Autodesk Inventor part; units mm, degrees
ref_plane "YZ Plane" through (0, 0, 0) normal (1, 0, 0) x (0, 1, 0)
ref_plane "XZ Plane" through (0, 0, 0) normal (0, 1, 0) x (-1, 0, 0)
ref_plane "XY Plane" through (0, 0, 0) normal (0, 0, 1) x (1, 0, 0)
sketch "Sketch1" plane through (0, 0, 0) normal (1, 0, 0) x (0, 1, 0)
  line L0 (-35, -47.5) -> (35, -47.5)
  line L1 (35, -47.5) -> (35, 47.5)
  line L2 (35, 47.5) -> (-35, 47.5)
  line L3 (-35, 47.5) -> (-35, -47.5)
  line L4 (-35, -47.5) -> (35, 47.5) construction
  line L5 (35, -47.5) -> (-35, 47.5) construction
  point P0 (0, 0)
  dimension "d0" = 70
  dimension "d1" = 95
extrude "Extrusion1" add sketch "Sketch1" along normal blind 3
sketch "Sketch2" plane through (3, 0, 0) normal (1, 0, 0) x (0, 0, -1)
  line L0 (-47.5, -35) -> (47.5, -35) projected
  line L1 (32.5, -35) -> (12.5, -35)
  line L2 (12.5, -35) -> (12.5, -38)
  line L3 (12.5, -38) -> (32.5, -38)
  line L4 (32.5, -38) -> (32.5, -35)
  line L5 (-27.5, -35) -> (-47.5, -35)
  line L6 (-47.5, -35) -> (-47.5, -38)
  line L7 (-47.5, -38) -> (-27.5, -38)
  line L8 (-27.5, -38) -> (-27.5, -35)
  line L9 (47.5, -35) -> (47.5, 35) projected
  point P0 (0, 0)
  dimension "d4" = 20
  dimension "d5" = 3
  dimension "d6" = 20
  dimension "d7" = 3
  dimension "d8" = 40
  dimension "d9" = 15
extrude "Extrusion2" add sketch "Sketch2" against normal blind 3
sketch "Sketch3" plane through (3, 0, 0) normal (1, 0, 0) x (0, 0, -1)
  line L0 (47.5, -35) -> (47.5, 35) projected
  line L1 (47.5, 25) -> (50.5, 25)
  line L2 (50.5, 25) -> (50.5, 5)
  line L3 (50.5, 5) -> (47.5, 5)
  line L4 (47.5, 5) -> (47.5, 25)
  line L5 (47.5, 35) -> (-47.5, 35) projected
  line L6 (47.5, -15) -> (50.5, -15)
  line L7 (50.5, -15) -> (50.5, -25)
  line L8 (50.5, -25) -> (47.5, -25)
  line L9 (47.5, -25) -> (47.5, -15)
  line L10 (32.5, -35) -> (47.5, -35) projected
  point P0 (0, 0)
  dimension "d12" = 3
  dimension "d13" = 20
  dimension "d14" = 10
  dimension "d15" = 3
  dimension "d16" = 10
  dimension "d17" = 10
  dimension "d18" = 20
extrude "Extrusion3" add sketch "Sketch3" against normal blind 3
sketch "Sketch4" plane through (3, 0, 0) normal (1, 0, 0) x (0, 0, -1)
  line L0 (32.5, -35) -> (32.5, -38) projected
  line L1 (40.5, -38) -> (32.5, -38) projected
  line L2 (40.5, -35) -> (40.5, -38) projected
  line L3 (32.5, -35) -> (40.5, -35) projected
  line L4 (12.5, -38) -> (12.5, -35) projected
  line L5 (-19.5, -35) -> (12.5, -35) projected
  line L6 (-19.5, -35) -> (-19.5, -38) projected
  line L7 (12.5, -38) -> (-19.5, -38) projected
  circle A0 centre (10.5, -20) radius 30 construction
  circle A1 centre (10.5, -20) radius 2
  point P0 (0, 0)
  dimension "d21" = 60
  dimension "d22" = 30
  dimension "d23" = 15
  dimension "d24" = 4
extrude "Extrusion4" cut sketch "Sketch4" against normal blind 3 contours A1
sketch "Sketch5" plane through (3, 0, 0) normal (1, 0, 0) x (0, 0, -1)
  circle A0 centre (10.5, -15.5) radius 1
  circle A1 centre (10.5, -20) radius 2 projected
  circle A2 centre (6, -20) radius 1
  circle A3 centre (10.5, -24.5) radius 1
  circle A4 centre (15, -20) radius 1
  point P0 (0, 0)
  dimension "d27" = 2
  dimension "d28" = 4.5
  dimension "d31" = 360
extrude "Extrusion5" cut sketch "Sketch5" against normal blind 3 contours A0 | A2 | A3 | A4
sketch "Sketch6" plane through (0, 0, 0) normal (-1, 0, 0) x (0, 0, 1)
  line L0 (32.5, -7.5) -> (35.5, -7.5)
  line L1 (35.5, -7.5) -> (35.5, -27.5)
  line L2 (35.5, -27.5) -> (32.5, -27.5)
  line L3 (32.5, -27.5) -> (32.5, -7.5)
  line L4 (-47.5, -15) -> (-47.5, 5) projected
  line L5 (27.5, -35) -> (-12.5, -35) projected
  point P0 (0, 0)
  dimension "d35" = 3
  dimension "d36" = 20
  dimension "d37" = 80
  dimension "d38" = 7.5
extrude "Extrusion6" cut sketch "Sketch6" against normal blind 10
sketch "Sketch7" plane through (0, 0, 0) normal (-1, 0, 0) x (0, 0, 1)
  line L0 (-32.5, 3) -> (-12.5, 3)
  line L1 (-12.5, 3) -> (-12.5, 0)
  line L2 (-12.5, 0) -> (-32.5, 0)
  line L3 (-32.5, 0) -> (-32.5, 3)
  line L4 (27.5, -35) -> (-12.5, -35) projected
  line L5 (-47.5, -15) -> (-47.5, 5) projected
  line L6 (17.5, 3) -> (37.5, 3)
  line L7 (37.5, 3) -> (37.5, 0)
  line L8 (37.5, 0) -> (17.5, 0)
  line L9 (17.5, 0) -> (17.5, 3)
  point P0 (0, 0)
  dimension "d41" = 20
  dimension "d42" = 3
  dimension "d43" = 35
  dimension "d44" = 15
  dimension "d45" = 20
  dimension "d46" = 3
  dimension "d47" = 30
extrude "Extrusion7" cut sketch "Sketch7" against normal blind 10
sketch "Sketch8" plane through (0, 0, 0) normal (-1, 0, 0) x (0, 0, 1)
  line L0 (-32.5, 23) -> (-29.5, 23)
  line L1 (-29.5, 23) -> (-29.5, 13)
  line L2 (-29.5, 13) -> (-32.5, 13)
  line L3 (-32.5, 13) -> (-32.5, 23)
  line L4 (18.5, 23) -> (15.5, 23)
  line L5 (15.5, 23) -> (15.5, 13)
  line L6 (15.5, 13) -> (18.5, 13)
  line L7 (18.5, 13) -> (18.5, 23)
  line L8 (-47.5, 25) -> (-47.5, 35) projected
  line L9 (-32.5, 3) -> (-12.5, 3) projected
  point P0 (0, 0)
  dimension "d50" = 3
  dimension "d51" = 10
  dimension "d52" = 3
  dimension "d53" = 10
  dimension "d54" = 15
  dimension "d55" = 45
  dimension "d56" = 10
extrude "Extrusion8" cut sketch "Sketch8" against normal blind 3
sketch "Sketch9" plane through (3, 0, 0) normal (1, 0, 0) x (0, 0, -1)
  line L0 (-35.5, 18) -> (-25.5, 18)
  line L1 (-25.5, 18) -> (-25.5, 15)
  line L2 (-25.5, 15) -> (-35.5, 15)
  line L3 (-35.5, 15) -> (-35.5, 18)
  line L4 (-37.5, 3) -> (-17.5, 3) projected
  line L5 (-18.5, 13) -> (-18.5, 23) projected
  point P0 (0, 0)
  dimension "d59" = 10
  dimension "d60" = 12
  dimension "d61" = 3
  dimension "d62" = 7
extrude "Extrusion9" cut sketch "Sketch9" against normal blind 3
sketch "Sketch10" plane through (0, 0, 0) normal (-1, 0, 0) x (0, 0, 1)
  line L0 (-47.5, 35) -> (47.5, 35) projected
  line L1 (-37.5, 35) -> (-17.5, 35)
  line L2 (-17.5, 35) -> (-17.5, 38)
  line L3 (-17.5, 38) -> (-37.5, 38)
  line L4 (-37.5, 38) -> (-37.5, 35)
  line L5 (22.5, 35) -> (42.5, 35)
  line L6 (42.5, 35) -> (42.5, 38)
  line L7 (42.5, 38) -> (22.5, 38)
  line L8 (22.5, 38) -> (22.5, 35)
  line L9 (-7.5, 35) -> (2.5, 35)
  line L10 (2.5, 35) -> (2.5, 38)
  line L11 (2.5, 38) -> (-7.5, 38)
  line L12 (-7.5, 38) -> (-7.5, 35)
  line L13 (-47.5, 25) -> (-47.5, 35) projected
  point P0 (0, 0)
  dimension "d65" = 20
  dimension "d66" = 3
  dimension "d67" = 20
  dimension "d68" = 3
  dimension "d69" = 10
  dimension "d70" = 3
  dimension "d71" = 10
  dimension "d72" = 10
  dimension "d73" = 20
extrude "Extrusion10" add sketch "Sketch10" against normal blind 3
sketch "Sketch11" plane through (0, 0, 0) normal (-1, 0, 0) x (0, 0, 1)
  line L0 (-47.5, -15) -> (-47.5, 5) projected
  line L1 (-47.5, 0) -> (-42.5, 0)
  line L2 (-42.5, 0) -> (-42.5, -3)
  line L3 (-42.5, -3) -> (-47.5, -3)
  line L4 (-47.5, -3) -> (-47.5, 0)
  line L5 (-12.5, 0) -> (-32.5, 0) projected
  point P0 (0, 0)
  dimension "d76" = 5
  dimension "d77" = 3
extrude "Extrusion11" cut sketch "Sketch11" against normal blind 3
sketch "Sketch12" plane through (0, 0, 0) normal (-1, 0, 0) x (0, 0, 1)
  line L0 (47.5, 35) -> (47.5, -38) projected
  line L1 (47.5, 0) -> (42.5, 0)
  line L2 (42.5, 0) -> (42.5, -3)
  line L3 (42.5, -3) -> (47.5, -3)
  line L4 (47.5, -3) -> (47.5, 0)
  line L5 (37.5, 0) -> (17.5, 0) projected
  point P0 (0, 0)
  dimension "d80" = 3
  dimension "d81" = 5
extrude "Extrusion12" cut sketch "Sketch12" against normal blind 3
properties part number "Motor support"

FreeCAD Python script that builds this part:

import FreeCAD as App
import Part
import Sketcher
from FreeCAD import Vector


def add_polygon(sketch, points):
    """Adds a closed chain of lines whose ends are joined by coincident constraints."""
    first, n = sketch.GeometryCount, len(points)
    for a, b in zip(points, points[1:] + points[:1]):
        sketch.addGeometry(Part.LineSegment(App.Vector(*a, 0), App.Vector(*b, 0)), False)
    for i in range(n):
        sketch.addConstraint(Sketcher.Constraint("Coincident", first + i, 2, first + (i + 1) % n, 1))

doc = App.newDocument("Part")
body = doc.addObject("PartDesign::Body", "Body")

sketch1 = body.newObject("Sketcher::SketchObject", "Sketch")
sketch1.AttachmentSupport = (doc.getObject("YZ_Plane"), [""])
sketch1.MapMode = "FlatFace"
add_polygon(sketch1, [(-35, 48), (-35, -48), (35, -48), (35, 48)])
sketch1.addConstraint(Sketcher.Constraint("Vertical", 0))
sketch1.addConstraint(Sketcher.Constraint("Horizontal", 1))
sketch1.addConstraint(Sketcher.Constraint("Vertical", 2))
sketch1.addConstraint(Sketcher.Constraint("Horizontal", 3))
sketch1.addConstraint(Sketcher.Constraint("Symmetric", 0, 2, 2, 2, -1, 1))
sketch1.addConstraint(Sketcher.Constraint("DistanceX", 1, 1, 1, 2, 70.0))
sketch1.addConstraint(Sketcher.Constraint("DistanceY", 0, 2, 0, 1, 95.0))
pad1 = body.newObject("PartDesign::Pad", "Pad")
pad1.Profile = sketch1
pad1.Length = 3

sketch2 = body.newObject("Sketcher::SketchObject", "Sketch001")
sketch2.AttachmentSupport = (doc.getObject("YZ_Plane"), [""])
sketch2.MapMode = "FlatFace"
sketch2.AttachmentOffset = App.Placement(Vector(0, 0, 3), App.Rotation())
add_polygon(sketch2, [(-35, -32.5), (-35, -12.5), (-38, -12.5), (-38, -32.5)])
add_polygon(sketch2, [(-35, 27.5), (-35, 47.5), (-38, 47.5), (-38, 27.5)])
sketch2.addConstraint(Sketcher.Constraint("Vertical", 0))
sketch2.addConstraint(Sketcher.Constraint("Horizontal", 1))
sketch2.addConstraint(Sketcher.Constraint("Vertical", 2))
sketch2.addConstraint(Sketcher.Constraint("Horizontal", 3))
sketch2.addConstraint(Sketcher.Constraint("Vertical", 4))
sketch2.addConstraint(Sketcher.Constraint("Horizontal", 5))
sketch2.addConstraint(Sketcher.Constraint("Vertical", 6))
sketch2.addConstraint(Sketcher.Constraint("Horizontal", 7))
sketch2.addConstraint(Sketcher.Constraint("Vertical", 3, 2, 4, 2))
sketch2.addConstraint(Sketcher.Constraint("Vertical", 2, 2, 5, 2))
sketch2.addConstraint(Sketcher.Constraint("Equal", 2, 4))
sketch2.addConstraint(Sketcher.Constraint("DistanceX", 1, 2, 1, 1, 3.0))
sketch2.addConstraint(Sketcher.Constraint("DistanceY", 0, 1, 0, 2, 20.0))
sketch2.addConstraint(Sketcher.Constraint("DistanceY", 1, 2, 6, 2, 40.0))
sketch2.addConstraint(Sketcher.Constraint("DistanceX", 0, 2, -1, 1, 35.0))
sketch2.addConstraint(Sketcher.Constraint("DistanceY", 0, 2, -1, 1, 12.5))
pad2 = body.newObject("PartDesign::Pad", "Pad001")
pad2.Profile = sketch2
pad2.Length = 3
pad2.Reversed = True

sketch3 = body.newObject("Sketcher::SketchObject", "Sketch002")
sketch3.AttachmentSupport = (doc.getObject("YZ_Plane"), [""])
sketch3.MapMode = "FlatFace"
sketch3.AttachmentOffset = App.Placement(Vector(0, 0, 3), App.Rotation())
add_polygon(sketch3, [(25, -47.5), (5, -47.5), (5, -50.5), (25, -50.5)])
add_polygon(sketch3, [(-15, -47.5), (-25, -47.5), (-25, -50.5), (-15, -50.5)])
sketch3.addConstraint(Sketcher.Constraint("Horizontal", 0))
sketch3.addConstraint(Sketcher.Constraint("Vertical", 1))
sketch3.addConstraint(Sketcher.Constraint("Horizontal", 2))
sketch3.addConstraint(Sketcher.Constraint("Vertical", 3))
sketch3.addConstraint(Sketcher.Constraint("Horizontal", 4))
sketch3.addConstraint(Sketcher.Constraint("Vertical", 5))
sketch3.addConstraint(Sketcher.Constraint("Horizontal", 6))
sketch3.addConstraint(Sketcher.Constraint("Vertical", 7))
sketch3.addConstraint(Sketcher.Constraint("Symmetric", 3, 2, 4, 2, -2))
sketch3.addConstraint(Sketcher.Constraint("Horizontal", 2, 2, 5, 2))
sketch3.addConstraint(Sketcher.Constraint("DistanceX", 0, 2, 0, 1, 20.0))
sketch3.addConstraint(Sketcher.Constraint("DistanceX", 4, 2, 4, 1, 10.0))
sketch3.addConstraint(Sketcher.Constraint("DistanceY", 1, 2, 1, 1, 3.0))
sketch3.addConstraint(Sketcher.Constraint("DistanceX", 6, 2, 1, 2, 20.0))
sketch3.addConstraint(Sketcher.Constraint("DistanceY", 0, 2, -1, 1, 47.5))
pad3 = body.newObject("PartDesign::Pad", "Pad002")
pad3.Profile = sketch3
pad3.Length = 3
pad3.Reversed = True

sketch4 = body.newObject("Sketcher::SketchObject", "Sketch003")
sketch4.AttachmentSupport = (doc.getObject("YZ_Plane"), [""])
sketch4.MapMode = "FlatFace"
sketch4.AttachmentOffset = App.Placement(Vector(0, 0, 3), App.Rotation())
sketch4.addGeometry(Part.Circle(Vector(-20, -10.5, 0), Vector(0, 0, 1), 2), False)
sketch4.addConstraint(Sketcher.Constraint("Diameter", 0, 4.0))
sketch4.addConstraint(Sketcher.Constraint("DistanceX", 0, 3, -1, 1, 20.0))
sketch4.addConstraint(Sketcher.Constraint("DistanceY", 0, 3, -1, 1, 10.5))
pocket1 = body.newObject("PartDesign::Pocket", "Pocket")
pocket1.Profile = sketch4
pocket1.Length = 3

sketch5 = body.newObject("Sketcher::SketchObject", "Sketch004")
sketch5.AttachmentSupport = (doc.getObject("YZ_Plane"), [""])
sketch5.MapMode = "FlatFace"
sketch5.AttachmentOffset = App.Placement(Vector(0, 0, 3), App.Rotation())
sketch5.addGeometry(Part.Circle(Vector(-15.5, -10.5, 0), Vector(0, 0, 1), 1), False)
sketch5.addGeometry(Part.Circle(Vector(-20, -6, 0), Vector(0, 0, 1), 1), False)
sketch5.addGeometry(Part.Circle(Vector(-24.5, -10.5, 0), Vector(0, 0, 1), 1), False)
sketch5.addGeometry(Part.Circle(Vector(-20, -15, 0), Vector(0, 0, 1), 1), False)
sketch5.addConstraint(Sketcher.Constraint("Equal", 0, 1))
sketch5.addConstraint(Sketcher.Constraint("Equal", 1, 2))
sketch5.addConstraint(Sketcher.Constraint("Equal", 2, 3))
sketch5.addConstraint(Sketcher.Constraint("Horizontal", 0, 3, 2, 3))
sketch5.addConstraint(Sketcher.Constraint("Vertical", 1, 3, 3, 3))
sketch5.addConstraint(Sketcher.Constraint("Diameter", 0, 2.0))
sketch5.addConstraint(Sketcher.Constraint("DistanceX", 1, 3, 0, 3, 4.5))
sketch5.addConstraint(Sketcher.Constraint("DistanceY", 0, 3, 1, 3, 4.5))
sketch5.addConstraint(Sketcher.Constraint("DistanceX", 2, 3, 1, 3, 4.5))
sketch5.addConstraint(Sketcher.Constraint("DistanceY", 3, 3, 0, 3, 4.5))
sketch5.addConstraint(Sketcher.Constraint("DistanceX", 1, 3, -1, 1, 20.0))
sketch5.addConstraint(Sketcher.Constraint("DistanceY", 1, 3, -1, 1, 6.0))
pocket2 = body.newObject("PartDesign::Pocket", "Pocket001")
pocket2.Profile = sketch5
pocket2.Length = 3

sketch6 = body.newObject("Sketcher::SketchObject", "Sketch005")
sketch6.AttachmentSupport = (doc.getObject("YZ_Plane"), [""])
sketch6.MapMode = "FlatFace"
add_polygon(sketch6, [(-7.5, 35.5), (-7.5, 32.5), (-27.5, 32.5), (-27.5, 35.5)])
sketch6.addConstraint(Sketcher.Constraint("Vertical", 0))
sketch6.addConstraint(Sketcher.Constraint("Horizontal", 1))
sketch6.addConstraint(Sketcher.Constraint("Vertical", 2))
sketch6.addConstraint(Sketcher.Constraint("Horizontal", 3))
sketch6.addConstraint(Sketcher.Constraint("DistanceX", 1, 2, 1, 1, 20.0))
sketch6.addConstraint(Sketcher.Constraint("DistanceY", 0, 2, 0, 1, 3.0))
sketch6.addConstraint(Sketcher.Constraint("DistanceX", 0, 2, -1, 1, 7.5))
sketch6.addConstraint(Sketcher.Constraint("DistanceY", -1, 1, 0, 2, 32.5))
pocket3 = body.newObject("PartDesign::Pocket", "Pocket002")
pocket3.Profile = sketch6
pocket3.Length = 10
pocket3.Reversed = True

sketch7 = body.newObject("Sketcher::SketchObject", "Sketch006")
sketch7.AttachmentSupport = (doc.getObject("YZ_Plane"), [""])
sketch7.MapMode = "FlatFace"
add_polygon(sketch7, [(3, -12.5), (3, -32.5), (0, -32.5), (0, -12.5)])
add_polygon(sketch7, [(3, 37.5), (3, 17.5), (0, 17.5), (0, 37.5)])
sketch7.addConstraint(Sketcher.Constraint("Vertical", 0))
sketch7.addConstraint(Sketcher.Constraint("Horizontal", 1))
sketch7.addConstraint(Sketcher.Constraint("Vertical", 2))
sketch7.addConstraint(Sketcher.Constraint("Horizontal", 3))
sketch7.addConstraint(Sketcher.Constraint("Vertical", 4))
sketch7.addConstraint(Sketcher.Constraint("Horizontal", 5))
sketch7.addConstraint(Sketcher.Constraint("Vertical", 6))
sketch7.addConstraint(Sketcher.Constraint("Horizontal", 7))
sketch7.addConstraint(Sketcher.Constraint("PointOnObject", 1, 2, -2))
sketch7.addConstraint(Sketcher.Constraint("PointOnObject", 5, 2, -2))
sketch7.addConstraint(Sketcher.Constraint("Vertical", 3, 2, 4, 2))
sketch7.addConstraint(Sketcher.Constraint("Equal", 2, 4))
sketch7.addConstraint(Sketcher.Constraint("DistanceX", 1, 2, 1, 1, 3.0))
sketch7.addConstraint(Sketcher.Constraint("DistanceY", 0, 2, 0, 1, 20.0))
sketch7.addConstraint(Sketcher.Constraint("DistanceY", 3, 2, 4, 2, 30.0))
sketch7.addConstraint(Sketcher.Constraint("DistanceY", 0, 2, -1, 1, 32.5))
pocket4 = body.newObject("PartDesign::Pocket", "Pocket003")
pocket4.Profile = sketch7
pocket4.Length = 10
pocket4.Reversed = True

sketch8 = body.newObject("Sketcher::SketchObject", "Sketch007")
sketch8.AttachmentSupport = (doc.getObject("YZ_Plane"), [""])
sketch8.MapMode = "FlatFace"
add_polygon(sketch8, [(23, -29.5), (23, -32.5), (13, -32.5), (13, -29.5)])
add_polygon(sketch8, [(13, 18.5), (23, 18.5), (23, 15.5), (13, 15.5)])
sketch8.addConstraint(Sketcher.Constraint("Vertical", 0))
sketch8.addConstraint(Sketcher.Constraint("Horizontal", 1))
sketch8.addConstraint(Sketcher.Constraint("Vertical", 2))
sketch8.addConstraint(Sketcher.Constraint("Horizontal", 3))
sketch8.addConstraint(Sketcher.Constraint("Horizontal", 4))
sketch8.addConstraint(Sketcher.Constraint("Vertical", 5))
sketch8.addConstraint(Sketcher.Constraint("Horizontal", 6))
sketch8.addConstraint(Sketcher.Constraint("Vertical", 7))
sketch8.addConstraint(Sketcher.Constraint("Vertical", 3, 2, 4, 2))
sketch8.addConstraint(Sketcher.Constraint("Vertical", 2, 2, 6, 2))
sketch8.addConstraint(Sketcher.Constraint("Equal", 2, 5))
sketch8.addConstraint(Sketcher.Constraint("DistanceX", 1, 2, 1, 1, 10.0))
sketch8.addConstraint(Sketcher.Constraint("DistanceY", 0, 2, 0, 1, 3.0))
sketch8.addConstraint(Sketcher.Constraint("DistanceY", 3, 2, 5, 2, 45.0))
sketch8.addConstraint(Sketcher.Constraint("DistanceX", -1, 1, 0, 2, 23.0))
sketch8.addConstraint(Sketcher.Constraint("DistanceY", 0, 2, -1, 1, 32.5))
pocket5 = body.newObject("PartDesign::Pocket", "Pocket004")
pocket5.Profile = sketch8
pocket5.Length = 3
pocket5.Reversed = True

sketch9 = body.newObject("Sketcher::SketchObject", "Sketch008")
sketch9.AttachmentSupport = (doc.getObject("YZ_Plane"), [""])
sketch9.MapMode = "FlatFace"
sketch9.AttachmentOffset = App.Placement(Vector(0, 0, 3), App.Rotation())
add_polygon(sketch9, [(18, 25.5), (18, 35.5), (15, 35.5), (15, 25.5)])
sketch9.addConstraint(Sketcher.Constraint("Vertical", 0))
sketch9.addConstraint(Sketcher.Constraint("Horizontal", 1))
sketch9.addConstraint(Sketcher.Constraint("Vertical", 2))
sketch9.addConstraint(Sketcher.Constraint("Horizontal", 3))
sketch9.addConstraint(Sketcher.Constraint("DistanceX", 1, 2, 1, 1, 3.0))
sketch9.addConstraint(Sketcher.Constraint("DistanceY", 0, 1, 0, 2, 10.0))
sketch9.addConstraint(Sketcher.Constraint("DistanceX", -1, 1, 0, 2, 18.0))
sketch9.addConstraint(Sketcher.Constraint("DistanceY", -1, 1, 0, 2, 35.5))
pocket6 = body.newObject("PartDesign::Pocket", "Pocket005")
pocket6.Profile = sketch9
pocket6.Length = 3

sketch10 = body.newObject("Sketcher::SketchObject", "Sketch009")
sketch10.AttachmentSupport = (doc.getObject("YZ_Plane"), [""])
sketch10.MapMode = "FlatFace"
add_polygon(sketch10, [(38, -37.5), (35, -37.5), (35, -17.5), (38, -17.5)])
add_polygon(sketch10, [(38, 22.5), (35, 22.5), (35, 42.5), (38, 42.5)])
add_polygon(sketch10, [(38, -7.5), (35, -7.5), (35, 2.5), (38, 2.5)])
sketch10.addConstraint(Sketcher.Constraint("Horizontal", 0))
sketch10.addConstraint(Sketcher.Constraint("Vertical", 1))
sketch10.addConstraint(Sketcher.Constraint("Horizontal", 2))
sketch10.addConstraint(Sketcher.Constraint("Vertical", 3))
sketch10.addConstraint(Sketcher.Constraint("Horizontal", 4))
sketch10.addConstraint(Sketcher.Constraint("Vertical", 5))
sketch10.addConstraint(Sketcher.Constraint("Horizontal", 6))
sketch10.addConstraint(Sketcher.Constraint("Vertical", 7))
sketch10.addConstraint(Sketcher.Constraint("Horizontal", 8))
sketch10.addConstraint(Sketcher.Constraint("Vertical", 9))
sketch10.addConstraint(Sketcher.Constraint("Horizontal", 10))
sketch10.addConstraint(Sketcher.Constraint("Vertical", 11))
sketch10.addConstraint(Sketcher.Constraint("Vertical", 1, 2, 4, 2))
sketch10.addConstraint(Sketcher.Constraint("Vertical", 3, 2, 6, 2))
sketch10.addConstraint(Sketcher.Constraint("Vertical", 5, 2, 8, 2))
sketch10.addConstraint(Sketcher.Constraint("Vertical", 7, 2, 10, 2))
sketch10.addConstraint(Sketcher.Constraint("Equal", 3, 5))
sketch10.addConstraint(Sketcher.Constraint("DistanceX", 0, 2, 0, 1, 3.0))
sketch10.addConstraint(Sketcher.Constraint("DistanceY", 1, 1, 1, 2, 20.0))
sketch10.addConstraint(Sketcher.Constraint("DistanceY", 9, 1, 9, 2, 10.0))
sketch10.addConstraint(Sketcher.Constraint("DistanceY", 1, 2, 8, 2, 10.0))
sketch10.addConstraint(Sketcher.Constraint("DistanceY", 9, 2, 4, 2, 20.0))
sketch10.addConstraint(Sketcher.Constraint("DistanceX", -1, 1, 0, 2, 35.0))
sketch10.addConstraint(Sketcher.Constraint("DistanceY", 0, 2, -1, 1, 37.5))
pad4 = body.newObject("PartDesign::Pad", "Pad003")
pad4.Profile = sketch10
pad4.Length = 3

sketch11 = body.newObject("Sketcher::SketchObject", "Sketch010")
sketch11.AttachmentSupport = (doc.getObject("YZ_Plane"), [""])
sketch11.MapMode = "FlatFace"
add_polygon(sketch11, [(0, -47.5), (-3, -47.5), (-3, -42.5), (0, -42.5)])
sketch11.addConstraint(Sketcher.Constraint("Horizontal", 0))
sketch11.addConstraint(Sketcher.Constraint("Vertical", 1))
sketch11.addConstraint(Sketcher.Constraint("Horizontal", 2))
sketch11.addConstraint(Sketcher.Constraint("Vertical", 3))
sketch11.addConstraint(Sketcher.Constraint("PointOnObject", 2, 2, -2))
sketch11.addConstraint(Sketcher.Constraint("DistanceX", 0, 2, 0, 1, 3.0))
sketch11.addConstraint(Sketcher.Constraint("DistanceY", 1, 1, 1, 2, 5.0))
sketch11.addConstraint(Sketcher.Constraint("DistanceY", 0, 2, -1, 1, 47.5))
pocket7 = body.newObject("PartDesign::Pocket", "Pocket006")
pocket7.Profile = sketch11
pocket7.Length = 3
pocket7.Reversed = True

sketch12 = body.newObject("Sketcher::SketchObject", "Sketch011")
sketch12.AttachmentSupport = (doc.getObject("YZ_Plane"), [""])
sketch12.MapMode = "FlatFace"
add_polygon(sketch12, [(-3, 47.5), (0, 47.5), (0, 42.5), (-3, 42.5)])
sketch12.addConstraint(Sketcher.Constraint("Horizontal", 0))
sketch12.addConstraint(Sketcher.Constraint("Vertical", 1))
sketch12.addConstraint(Sketcher.Constraint("Horizontal", 2))
sketch12.addConstraint(Sketcher.Constraint("Vertical", 3))
sketch12.addConstraint(Sketcher.Constraint("PointOnObject", 0, 2, -2))
sketch12.addConstraint(Sketcher.Constraint("DistanceX", 0, 1, 0, 2, 3.0))
sketch12.addConstraint(Sketcher.Constraint("DistanceY", 1, 2, 1, 1, 5.0))
sketch12.addConstraint(Sketcher.Constraint("DistanceY", -1, 1, 0, 2, 47.5))
pocket8 = body.newObject("PartDesign::Pocket", "Pocket007")
pocket8.Profile = sketch12
pocket8.Length = 3
pocket8.Reversed = True

doc.recompute()
